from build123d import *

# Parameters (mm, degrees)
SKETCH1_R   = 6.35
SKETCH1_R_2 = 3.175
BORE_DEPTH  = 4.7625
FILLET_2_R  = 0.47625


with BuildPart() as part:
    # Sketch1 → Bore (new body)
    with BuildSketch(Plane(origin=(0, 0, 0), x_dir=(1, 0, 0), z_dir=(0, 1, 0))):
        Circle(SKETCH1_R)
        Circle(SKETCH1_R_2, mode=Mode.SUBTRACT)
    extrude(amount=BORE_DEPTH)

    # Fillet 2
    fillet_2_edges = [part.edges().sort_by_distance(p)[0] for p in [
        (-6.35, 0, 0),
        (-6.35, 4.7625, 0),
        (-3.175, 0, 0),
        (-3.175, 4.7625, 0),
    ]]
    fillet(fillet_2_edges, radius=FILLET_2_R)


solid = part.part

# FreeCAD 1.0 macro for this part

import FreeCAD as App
import Part
import Sketcher
from FreeCAD import Vector
Q = App.Units.Quantity


def edges_at(feature, points):
    """Names of the edges that pass closest to the given points."""
    edges = feature.Shape.Edges
    near = lambda p: min(range(len(edges)), key=lambda i: edges[i].distToShape(Part.Vertex(*p))[0])
    return sorted({f"Edge{near(p) + 1}" for p in points})

doc = App.newDocument("Part")
body = doc.addObject("PartDesign::Body", "Body")

# Sketch on XZ plane
sketch1 = body.newObject("Sketcher::SketchObject", "Sketch")
sketch1.AttachmentSupport = (doc.getObject("XZ_Plane"), [""])
sketch1.MapMode = "FlatFace"
sketch1.addGeometry(Part.Circle(Vector(0, 0, 0), Vector(0, 0, 1), 6.3), False)
sketch1.addGeometry(Part.Circle(Vector(0, 0, 0), Vector(0, 0, 1), 3.2), False)
sketch1.addConstraint(Sketcher.Constraint("Coincident", 0, 3, -1, 1))
sketch1.addConstraint(Sketcher.Constraint("Coincident", 1, 3, -1, 1))
sketch1.addConstraint(Sketcher.Constraint("Diameter", 0, Q("0.5 in")))
sketch1.addConstraint(Sketcher.Constraint("Diameter", 1, Q("0.25 in")))
pad1 = body.newObject("PartDesign::Pad", "Pad")
pad1.Profile = sketch1
pad1.Length = Q("0.1875 in")
pad1.Reversed = True
doc.recompute()

fillet = body.newObject("PartDesign::Fillet", "Fillet")
fillet.Base = (pad1, edges_at(pad1, [
    (-6.35, 0, 0),
    (-6.35, 4.763, 0),
    (-3.175, 0, 0),
    (-3.175, 4.763, 0),
]))
fillet.Radius = 0.47625

doc.recompute()
